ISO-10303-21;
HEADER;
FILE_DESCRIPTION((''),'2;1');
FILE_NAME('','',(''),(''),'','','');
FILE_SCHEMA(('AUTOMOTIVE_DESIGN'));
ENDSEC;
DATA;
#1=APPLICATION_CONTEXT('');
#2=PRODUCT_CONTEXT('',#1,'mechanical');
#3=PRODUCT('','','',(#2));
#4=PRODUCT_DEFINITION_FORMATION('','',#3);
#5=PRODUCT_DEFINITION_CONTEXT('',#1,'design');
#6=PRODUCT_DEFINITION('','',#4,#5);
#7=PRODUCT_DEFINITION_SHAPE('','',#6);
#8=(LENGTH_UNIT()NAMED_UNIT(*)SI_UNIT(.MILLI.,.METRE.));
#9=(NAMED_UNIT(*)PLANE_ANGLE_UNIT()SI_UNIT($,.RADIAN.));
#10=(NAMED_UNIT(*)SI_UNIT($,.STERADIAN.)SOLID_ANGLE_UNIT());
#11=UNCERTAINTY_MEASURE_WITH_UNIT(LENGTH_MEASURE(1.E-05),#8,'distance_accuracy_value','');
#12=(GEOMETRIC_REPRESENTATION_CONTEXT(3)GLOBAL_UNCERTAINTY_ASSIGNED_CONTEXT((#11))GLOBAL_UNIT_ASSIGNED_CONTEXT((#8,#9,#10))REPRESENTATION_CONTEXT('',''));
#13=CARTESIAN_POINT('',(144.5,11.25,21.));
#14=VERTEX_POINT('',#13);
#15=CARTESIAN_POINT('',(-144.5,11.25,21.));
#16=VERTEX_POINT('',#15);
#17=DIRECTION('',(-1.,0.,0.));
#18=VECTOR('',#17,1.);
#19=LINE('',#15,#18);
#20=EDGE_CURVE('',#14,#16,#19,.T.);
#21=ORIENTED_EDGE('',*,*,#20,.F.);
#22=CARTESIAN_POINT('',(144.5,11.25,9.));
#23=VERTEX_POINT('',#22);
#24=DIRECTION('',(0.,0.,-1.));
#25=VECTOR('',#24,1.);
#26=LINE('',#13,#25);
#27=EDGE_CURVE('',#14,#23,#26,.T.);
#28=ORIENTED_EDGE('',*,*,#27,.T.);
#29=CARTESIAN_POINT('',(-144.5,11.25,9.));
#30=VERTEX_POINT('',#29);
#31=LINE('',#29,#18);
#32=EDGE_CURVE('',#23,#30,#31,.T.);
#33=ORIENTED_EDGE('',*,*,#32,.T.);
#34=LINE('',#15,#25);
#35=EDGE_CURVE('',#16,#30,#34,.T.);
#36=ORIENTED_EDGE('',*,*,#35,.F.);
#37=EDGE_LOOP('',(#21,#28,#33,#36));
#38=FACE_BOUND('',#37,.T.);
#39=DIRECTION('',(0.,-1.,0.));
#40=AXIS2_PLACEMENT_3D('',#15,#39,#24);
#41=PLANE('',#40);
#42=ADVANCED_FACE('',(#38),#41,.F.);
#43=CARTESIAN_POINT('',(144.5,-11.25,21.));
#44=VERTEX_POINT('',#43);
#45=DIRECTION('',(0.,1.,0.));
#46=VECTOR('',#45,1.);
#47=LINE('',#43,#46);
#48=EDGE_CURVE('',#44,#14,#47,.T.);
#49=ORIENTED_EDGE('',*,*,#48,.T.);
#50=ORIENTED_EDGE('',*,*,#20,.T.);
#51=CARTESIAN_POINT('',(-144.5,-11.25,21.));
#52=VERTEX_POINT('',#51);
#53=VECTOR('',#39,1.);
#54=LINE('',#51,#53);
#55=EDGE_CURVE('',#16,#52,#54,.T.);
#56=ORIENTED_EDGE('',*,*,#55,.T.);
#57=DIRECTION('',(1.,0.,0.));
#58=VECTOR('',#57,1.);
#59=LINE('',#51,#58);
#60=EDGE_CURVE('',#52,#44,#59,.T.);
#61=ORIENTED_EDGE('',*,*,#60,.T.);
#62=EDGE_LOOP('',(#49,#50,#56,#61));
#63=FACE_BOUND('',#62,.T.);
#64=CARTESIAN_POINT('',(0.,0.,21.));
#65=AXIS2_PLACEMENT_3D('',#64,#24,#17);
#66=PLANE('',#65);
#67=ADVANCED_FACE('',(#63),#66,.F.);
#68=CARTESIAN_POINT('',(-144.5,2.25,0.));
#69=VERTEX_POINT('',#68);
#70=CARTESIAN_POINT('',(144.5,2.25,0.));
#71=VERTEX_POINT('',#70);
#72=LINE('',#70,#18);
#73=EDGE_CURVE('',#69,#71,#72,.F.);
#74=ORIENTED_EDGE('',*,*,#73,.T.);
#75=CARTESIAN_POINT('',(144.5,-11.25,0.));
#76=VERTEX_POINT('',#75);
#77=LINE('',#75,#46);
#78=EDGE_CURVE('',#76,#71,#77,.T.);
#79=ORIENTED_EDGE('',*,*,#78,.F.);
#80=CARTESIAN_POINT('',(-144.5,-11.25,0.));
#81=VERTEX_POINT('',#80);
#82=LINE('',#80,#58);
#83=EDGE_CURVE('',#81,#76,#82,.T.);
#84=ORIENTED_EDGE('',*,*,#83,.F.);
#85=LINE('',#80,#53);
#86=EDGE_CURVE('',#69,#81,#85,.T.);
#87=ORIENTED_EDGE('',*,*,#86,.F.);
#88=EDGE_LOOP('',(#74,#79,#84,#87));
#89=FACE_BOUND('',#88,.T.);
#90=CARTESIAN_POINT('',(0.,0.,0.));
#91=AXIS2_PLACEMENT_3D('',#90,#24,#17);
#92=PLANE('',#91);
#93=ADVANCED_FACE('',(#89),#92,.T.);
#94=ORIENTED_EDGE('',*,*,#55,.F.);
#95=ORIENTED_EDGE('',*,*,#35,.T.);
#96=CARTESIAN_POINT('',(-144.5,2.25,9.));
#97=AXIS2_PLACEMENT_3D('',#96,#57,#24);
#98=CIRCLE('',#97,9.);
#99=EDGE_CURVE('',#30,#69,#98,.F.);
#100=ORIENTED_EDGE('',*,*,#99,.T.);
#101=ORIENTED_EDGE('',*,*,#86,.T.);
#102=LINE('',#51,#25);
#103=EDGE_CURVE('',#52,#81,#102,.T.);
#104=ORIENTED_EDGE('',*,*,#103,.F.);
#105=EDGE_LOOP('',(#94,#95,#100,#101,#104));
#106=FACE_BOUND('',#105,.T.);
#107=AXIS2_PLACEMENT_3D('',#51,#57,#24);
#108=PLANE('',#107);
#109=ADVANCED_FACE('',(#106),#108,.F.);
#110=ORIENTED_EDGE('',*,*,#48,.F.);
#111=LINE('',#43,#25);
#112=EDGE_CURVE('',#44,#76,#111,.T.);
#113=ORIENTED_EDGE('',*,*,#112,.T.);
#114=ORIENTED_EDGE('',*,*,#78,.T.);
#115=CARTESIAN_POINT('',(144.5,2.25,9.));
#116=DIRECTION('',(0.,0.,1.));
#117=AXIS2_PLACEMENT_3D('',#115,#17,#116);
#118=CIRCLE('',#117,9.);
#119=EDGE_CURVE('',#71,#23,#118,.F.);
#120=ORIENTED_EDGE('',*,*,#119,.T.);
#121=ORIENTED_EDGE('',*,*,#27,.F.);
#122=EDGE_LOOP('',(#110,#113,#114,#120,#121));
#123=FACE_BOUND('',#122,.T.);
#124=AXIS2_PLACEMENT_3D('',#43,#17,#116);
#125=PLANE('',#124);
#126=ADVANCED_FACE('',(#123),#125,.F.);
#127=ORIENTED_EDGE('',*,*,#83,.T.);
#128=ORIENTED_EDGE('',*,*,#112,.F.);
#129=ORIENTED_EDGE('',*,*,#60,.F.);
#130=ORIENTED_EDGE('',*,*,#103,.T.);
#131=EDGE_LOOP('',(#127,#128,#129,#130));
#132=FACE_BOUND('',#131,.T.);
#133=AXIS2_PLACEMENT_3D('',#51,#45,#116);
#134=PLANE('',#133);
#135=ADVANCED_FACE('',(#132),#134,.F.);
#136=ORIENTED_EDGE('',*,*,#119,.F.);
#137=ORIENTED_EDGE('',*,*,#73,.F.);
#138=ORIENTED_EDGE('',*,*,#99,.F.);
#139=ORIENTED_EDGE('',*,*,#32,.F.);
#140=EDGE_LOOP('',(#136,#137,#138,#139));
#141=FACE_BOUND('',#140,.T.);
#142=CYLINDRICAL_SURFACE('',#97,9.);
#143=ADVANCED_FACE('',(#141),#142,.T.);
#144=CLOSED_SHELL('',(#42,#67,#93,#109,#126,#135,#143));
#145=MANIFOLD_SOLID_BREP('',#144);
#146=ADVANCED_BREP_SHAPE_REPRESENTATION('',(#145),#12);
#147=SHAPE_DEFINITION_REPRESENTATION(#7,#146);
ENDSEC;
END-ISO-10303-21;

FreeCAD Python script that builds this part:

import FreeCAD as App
import Part
import Sketcher
from FreeCAD import Vector


def edges_at(feature, points):
    """Names of the edges that pass closest to the given points."""
    edges = feature.Shape.Edges
    near = lambda p: min(range(len(edges)), key=lambda i: edges[i].distToShape(Part.Vertex(*p))[0])
    return sorted({f"Edge{near(p) + 1}" for p in points})

doc = App.newDocument("Part")
params = doc.addObject("Spreadsheet::Sheet", "Params")
for row, (alias, value) in enumerate([
    ("sketch1_width", "289 mm"),
    ("sketch1_height", "22.5 mm"),
    ("pad1_length", "21 mm"),
    ("fillet_radius", "9 mm"),
], start=1):
    params.set(f"A{row}", alias)
    params.set(f"B{row}", "=" + value)
    params.setAlias(f"B{row}", alias)

body = doc.addObject("PartDesign::Body", "Body")

# Sketch on XY plane
sketch1 = body.newObject("Sketcher::SketchObject", "Sketch")
sketch1.AttachmentSupport = (doc.getObject("XY_Plane"), [""])
sketch1.MapMode = "FlatFace"
sketch1.addGeometry([
    Part.LineSegment(Vector(-144, 11, 0), Vector(-144, -11, 0)),
    Part.LineSegment(Vector(-144, -11, 0), Vector(144, -11, 0)),
    Part.LineSegment(Vector(144, -11, 0), Vector(144, 11, 0)),
    Part.LineSegment(Vector(144, 11, 0), Vector(-144, 11, 0)),
], False)
sketch1.addConstraint([
    Sketcher.Constraint("Coincident", 0, 2, 1, 1),
    Sketcher.Constraint("Coincident", 1, 2, 2, 1),
    Sketcher.Constraint("Coincident", 2, 2, 3, 1),
    Sketcher.Constraint("Coincident", 3, 2, 0, 1),
    Sketcher.Constraint("Vertical", 0),
    Sketcher.Constraint("Horizontal", 1),
    Sketcher.Constraint("Vertical", 2),
    Sketcher.Constraint("Horizontal", 3),
    Sketcher.Constraint("Symmetric", 0, 2, 2, 2, -1, 1),
    Sketcher.Constraint("DistanceX", 1, 1, 1, 2, 289.0),
    Sketcher.Constraint("DistanceY", 0, 2, 0, 1, 22.5),
])
sketch1.setExpression("Constraints[9]", "Params.sketch1_width")
sketch1.setExpression("Constraints[10]", "Params.sketch1_height")
pad1 = body.newObject("PartDesign::Pad", "Pad")
pad1.Profile = sketch1
pad1.setExpression("Length", "Params.pad1_length")
doc.recompute()

fillet = body.newObject("PartDesign::Fillet", "Fillet")
fillet.Base = (pad1, edges_at(pad1, [(0, 11.25, 0)]))
fillet.setExpression("Radius", "Params.fillet_radius")

doc.recompute()
